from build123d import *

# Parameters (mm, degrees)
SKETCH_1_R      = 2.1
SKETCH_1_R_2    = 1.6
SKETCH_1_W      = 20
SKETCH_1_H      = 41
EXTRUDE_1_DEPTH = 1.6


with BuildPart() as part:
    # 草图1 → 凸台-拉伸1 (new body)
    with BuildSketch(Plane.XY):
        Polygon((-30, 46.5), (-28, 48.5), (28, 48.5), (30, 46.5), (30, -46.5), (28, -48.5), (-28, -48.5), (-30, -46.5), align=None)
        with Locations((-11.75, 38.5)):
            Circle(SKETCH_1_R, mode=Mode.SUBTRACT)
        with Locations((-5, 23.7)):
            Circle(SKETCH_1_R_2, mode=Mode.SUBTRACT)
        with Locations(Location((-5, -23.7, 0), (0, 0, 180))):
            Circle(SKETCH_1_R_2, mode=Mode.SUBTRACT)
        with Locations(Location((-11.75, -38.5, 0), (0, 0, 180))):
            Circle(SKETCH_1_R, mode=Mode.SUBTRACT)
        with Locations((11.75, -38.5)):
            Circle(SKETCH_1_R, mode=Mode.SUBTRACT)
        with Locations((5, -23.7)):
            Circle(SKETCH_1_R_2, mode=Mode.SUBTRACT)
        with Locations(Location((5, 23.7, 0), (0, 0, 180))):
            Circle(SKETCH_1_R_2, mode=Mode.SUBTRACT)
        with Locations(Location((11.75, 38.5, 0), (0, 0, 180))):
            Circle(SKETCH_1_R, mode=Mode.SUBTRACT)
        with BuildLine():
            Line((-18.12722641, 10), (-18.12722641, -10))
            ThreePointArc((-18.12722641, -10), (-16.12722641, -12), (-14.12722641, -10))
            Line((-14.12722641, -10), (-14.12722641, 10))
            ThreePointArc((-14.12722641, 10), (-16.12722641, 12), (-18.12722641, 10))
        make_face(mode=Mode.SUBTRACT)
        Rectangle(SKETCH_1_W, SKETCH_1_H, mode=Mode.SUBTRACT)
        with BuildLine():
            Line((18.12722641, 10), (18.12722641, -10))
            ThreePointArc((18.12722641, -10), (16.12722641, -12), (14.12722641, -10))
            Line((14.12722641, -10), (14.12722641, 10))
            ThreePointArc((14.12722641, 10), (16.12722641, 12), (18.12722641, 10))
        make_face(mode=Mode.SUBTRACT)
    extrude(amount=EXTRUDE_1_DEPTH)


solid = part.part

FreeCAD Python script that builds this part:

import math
import FreeCAD as App
import Part
import Sketcher

V = App.Vector


def add_polygon(sketch, points):
    """Adds a closed chain of lines whose ends are joined by coincident constraints."""
    first, n = sketch.GeometryCount, len(points)
    for a, b in zip(points, points[1:] + points[:1]):
        sketch.addGeometry(Part.LineSegment(App.Vector(*a, 0), App.Vector(*b, 0)), False)
    for i in range(n):
        sketch.addConstraint(Sketcher.Constraint("Coincident", first + i, 2, first + (i + 1) % n, 1))

doc = App.newDocument("Part")
body = doc.addObject("PartDesign::Body", "Body")

# Sketch on XY plane
sketch1 = body.newObject("Sketcher::SketchObject", "Sketch")
sketch1.AttachmentSupport = (doc.getObject("XY_Plane"), [""])
sketch1.MapMode = "FlatFace"
add_polygon(sketch1, [(-28, 48.5), (-30, 46.5), (-30, -46.5), (-28, -48.5), (28, -48.5), (30, -46.5), (30, 46.5), (28, 48.5)])  # lines 0-7
sketch1.addGeometry(Part.Circle(V(11.8, -38.5, 0), V(0, 0, 1), 2.1), False)  # 8
sketch1.addGeometry(Part.Circle(V(5, -23.7, 0), V(0, 0, 1), 1.6), False)  # 9
sketch1.addGeometry(Part.LineSegment(V(18.1, 10, 0), V(18.1, -10, 0)), False)  # 10
sketch1.addGeometry(Part.ArcOfCircle(Part.Circle(V(16.1, -10, 0), V(0, 0, 1), 2), math.radians(180), math.radians(360)), False)  # 11
sketch1.addGeometry(Part.LineSegment(V(14.1, -10, 0), V(14.1, 10, 0)), False)  # 12
sketch1.addGeometry(Part.ArcOfCircle(Part.Circle(V(16.1, 10, 0), V(0, 0, 1), 2), math.radians(0), math.radians(180)), False)  # 13
sketch1.addGeometry(Part.Circle(V(-5, -23.7, 0), V(0, 0, 1), 1.6), False)  # 14
sketch1.addGeometry(Part.Circle(V(-11.8, -38.5, 0), V(0, 0, 1), 2.1), False)  # 15
add_polygon(sketch1, [(-10, -20.5), (-10, 20.5), (10, 20.5), (10, -20.5)])  # lines 16-19
sketch1.addGeometry(Part.ArcOfCircle(Part.Circle(V(-16.1, 10, 0), V(0, 0, 1), 2), math.radians(0), math.radians(180)), False)  # 20
sketch1.addGeometry(Part.LineSegment(V(-14.1, 10, 0), V(-14.1, -10, 0)), False)  # 21
sketch1.addGeometry(Part.ArcOfCircle(Part.Circle(V(-16.1, -10, 0), V(0, 0, 1), 2), math.radians(180), math.radians(360)), False)  # 22
sketch1.addGeometry(Part.LineSegment(V(-18.1, -10, 0), V(-18.1, 10, 0)), False)  # 23
sketch1.addGeometry(Part.Circle(V(11.8, 38.5, 0), V(0, 0, 1), 2.1), False)  # 24
sketch1.addGeometry(Part.Circle(V(5, 23.7, 0), V(0, 0, 1), 1.6), False)  # 25
sketch1.addGeometry(Part.Circle(V(-5, 23.7, 0), V(0, 0, 1), 1.6), False)  # 26
sketch1.addGeometry(Part.Circle(V(-11.8, 38.5, 0), V(0, 0, 1), 2.1), False)  # 27
sketch1.addConstraint([
    Sketcher.Constraint("Tangent", 10, 2, 11, 2),
    Sketcher.Constraint("Tangent", 11, 1, 12, 1),
    Sketcher.Constraint("Tangent", 12, 2, 13, 2),
    Sketcher.Constraint("Tangent", 13, 1, 10, 1),
    Sketcher.Constraint("Tangent", 20, 1, 21, 1),
    Sketcher.Constraint("Tangent", 21, 2, 22, 2),
    Sketcher.Constraint("Tangent", 22, 1, 23, 1),
    Sketcher.Constraint("Tangent", 23, 2, 20, 2),
    Sketcher.Constraint("Vertical", 1),
    Sketcher.Constraint("Horizontal", 3),
    Sketcher.Constraint("Vertical", 5),
    Sketcher.Constraint("Horizontal", 7),
    Sketcher.Constraint("Vertical", 10),
    Sketcher.Constraint("Vertical", 12),
    Sketcher.Constraint("Vertical", 16),
    Sketcher.Constraint("Horizontal", 17),
    Sketcher.Constraint("Vertical", 18),
    Sketcher.Constraint("Horizontal", 19),
    Sketcher.Constraint("Vertical", 21),
    Sketcher.Constraint("Vertical", 23),
    Sketcher.Constraint("Equal", 9, 14),
    Sketcher.Constraint("Equal", 8, 15),
    Sketcher.Constraint("Equal", 13, 20),
    Sketcher.Constraint("Equal", 15, 24),
    Sketcher.Constraint("Equal", 14, 25),
    Sketcher.Constraint("Equal", 25, 26),
    Sketcher.Constraint("Equal", 24, 27),
    Sketcher.Constraint("Symmetric", 11, 3, 20, 3, -1, 1),
    Sketcher.Constraint("Symmetric", 15, 3, 24, 3, -1, 1),
    Sketcher.Constraint("Symmetric", 14, 3, 25, 3, -1, 1),
    Sketcher.Constraint("Symmetric", 9, 3, 26, 3, -1, 1),
    Sketcher.Constraint("Symmetric", 8, 3, 27, 3, -1, 1),
    Sketcher.Constraint("Symmetric", 0, 2, 4, 2, -1, 1),
    Sketcher.Constraint("Symmetric", 2, 2, 6, 2, -1, 1),
    Sketcher.Constraint("Symmetric", 16, 2, 18, 2, -1, 1),
    Sketcher.Constraint("Symmetric", 9, 3, 14, 3, -2),
    Sketcher.Constraint("Symmetric", 8, 3, 15, 3, -2),
    Sketcher.Constraint("Perpendicular", 0, 2),
    Sketcher.Constraint("Perpendicular", 2, 4),
    Sketcher.Constraint("Perpendicular", 4, 6),
    Sketcher.Constraint("Horizontal", 13, 3, 20, 3),
    Sketcher.Constraint("Horizontal", 11, 3, 22, 3),
    Sketcher.Constraint("Horizontal", 1, 2, 4, 2),
    Sketcher.Constraint("Vertical", 3, 2, 6, 2),
    Sketcher.Constraint("Equal", 19, 10),
    Sketcher.Constraint("Radius", 11, 2.0),
    Sketcher.Constraint("Diameter", 8, 4.2),
    Sketcher.Constraint("Diameter", 9, 3.2),
    Sketcher.Constraint("DistanceX", 3, 1, 3, 2, 56.0),
    Sketcher.Constraint("DistanceX", 17, 1, 17, 2, 20.0),
    Sketcher.Constraint("DistanceY", 1, 2, 1, 1, 93.0),
    Sketcher.Constraint("DistanceY", 16, 1, 16, 2, 41.0),
    Sketcher.Constraint("DistanceX", -1, 1, 9, 3, 5.0),
    Sketcher.Constraint("DistanceX", 0, 2, -1, 1, 30.0),
    Sketcher.Constraint("DistanceY", 27, 3, 0, 2, 8.0),
    Sketcher.Constraint("DistanceY", 9, 3, -1, 1, 23.7),
    Sketcher.Constraint("DistanceX", 15, 3, 8, 3, 23.5),
    Sketcher.Constraint("DistanceX", -1, 1, 11, 3, 16.127226),
])
pad1 = body.newObject("PartDesign::Pad", "Pad")
pad1.Profile = sketch1
pad1.Length = 1.6

doc.recompute()
